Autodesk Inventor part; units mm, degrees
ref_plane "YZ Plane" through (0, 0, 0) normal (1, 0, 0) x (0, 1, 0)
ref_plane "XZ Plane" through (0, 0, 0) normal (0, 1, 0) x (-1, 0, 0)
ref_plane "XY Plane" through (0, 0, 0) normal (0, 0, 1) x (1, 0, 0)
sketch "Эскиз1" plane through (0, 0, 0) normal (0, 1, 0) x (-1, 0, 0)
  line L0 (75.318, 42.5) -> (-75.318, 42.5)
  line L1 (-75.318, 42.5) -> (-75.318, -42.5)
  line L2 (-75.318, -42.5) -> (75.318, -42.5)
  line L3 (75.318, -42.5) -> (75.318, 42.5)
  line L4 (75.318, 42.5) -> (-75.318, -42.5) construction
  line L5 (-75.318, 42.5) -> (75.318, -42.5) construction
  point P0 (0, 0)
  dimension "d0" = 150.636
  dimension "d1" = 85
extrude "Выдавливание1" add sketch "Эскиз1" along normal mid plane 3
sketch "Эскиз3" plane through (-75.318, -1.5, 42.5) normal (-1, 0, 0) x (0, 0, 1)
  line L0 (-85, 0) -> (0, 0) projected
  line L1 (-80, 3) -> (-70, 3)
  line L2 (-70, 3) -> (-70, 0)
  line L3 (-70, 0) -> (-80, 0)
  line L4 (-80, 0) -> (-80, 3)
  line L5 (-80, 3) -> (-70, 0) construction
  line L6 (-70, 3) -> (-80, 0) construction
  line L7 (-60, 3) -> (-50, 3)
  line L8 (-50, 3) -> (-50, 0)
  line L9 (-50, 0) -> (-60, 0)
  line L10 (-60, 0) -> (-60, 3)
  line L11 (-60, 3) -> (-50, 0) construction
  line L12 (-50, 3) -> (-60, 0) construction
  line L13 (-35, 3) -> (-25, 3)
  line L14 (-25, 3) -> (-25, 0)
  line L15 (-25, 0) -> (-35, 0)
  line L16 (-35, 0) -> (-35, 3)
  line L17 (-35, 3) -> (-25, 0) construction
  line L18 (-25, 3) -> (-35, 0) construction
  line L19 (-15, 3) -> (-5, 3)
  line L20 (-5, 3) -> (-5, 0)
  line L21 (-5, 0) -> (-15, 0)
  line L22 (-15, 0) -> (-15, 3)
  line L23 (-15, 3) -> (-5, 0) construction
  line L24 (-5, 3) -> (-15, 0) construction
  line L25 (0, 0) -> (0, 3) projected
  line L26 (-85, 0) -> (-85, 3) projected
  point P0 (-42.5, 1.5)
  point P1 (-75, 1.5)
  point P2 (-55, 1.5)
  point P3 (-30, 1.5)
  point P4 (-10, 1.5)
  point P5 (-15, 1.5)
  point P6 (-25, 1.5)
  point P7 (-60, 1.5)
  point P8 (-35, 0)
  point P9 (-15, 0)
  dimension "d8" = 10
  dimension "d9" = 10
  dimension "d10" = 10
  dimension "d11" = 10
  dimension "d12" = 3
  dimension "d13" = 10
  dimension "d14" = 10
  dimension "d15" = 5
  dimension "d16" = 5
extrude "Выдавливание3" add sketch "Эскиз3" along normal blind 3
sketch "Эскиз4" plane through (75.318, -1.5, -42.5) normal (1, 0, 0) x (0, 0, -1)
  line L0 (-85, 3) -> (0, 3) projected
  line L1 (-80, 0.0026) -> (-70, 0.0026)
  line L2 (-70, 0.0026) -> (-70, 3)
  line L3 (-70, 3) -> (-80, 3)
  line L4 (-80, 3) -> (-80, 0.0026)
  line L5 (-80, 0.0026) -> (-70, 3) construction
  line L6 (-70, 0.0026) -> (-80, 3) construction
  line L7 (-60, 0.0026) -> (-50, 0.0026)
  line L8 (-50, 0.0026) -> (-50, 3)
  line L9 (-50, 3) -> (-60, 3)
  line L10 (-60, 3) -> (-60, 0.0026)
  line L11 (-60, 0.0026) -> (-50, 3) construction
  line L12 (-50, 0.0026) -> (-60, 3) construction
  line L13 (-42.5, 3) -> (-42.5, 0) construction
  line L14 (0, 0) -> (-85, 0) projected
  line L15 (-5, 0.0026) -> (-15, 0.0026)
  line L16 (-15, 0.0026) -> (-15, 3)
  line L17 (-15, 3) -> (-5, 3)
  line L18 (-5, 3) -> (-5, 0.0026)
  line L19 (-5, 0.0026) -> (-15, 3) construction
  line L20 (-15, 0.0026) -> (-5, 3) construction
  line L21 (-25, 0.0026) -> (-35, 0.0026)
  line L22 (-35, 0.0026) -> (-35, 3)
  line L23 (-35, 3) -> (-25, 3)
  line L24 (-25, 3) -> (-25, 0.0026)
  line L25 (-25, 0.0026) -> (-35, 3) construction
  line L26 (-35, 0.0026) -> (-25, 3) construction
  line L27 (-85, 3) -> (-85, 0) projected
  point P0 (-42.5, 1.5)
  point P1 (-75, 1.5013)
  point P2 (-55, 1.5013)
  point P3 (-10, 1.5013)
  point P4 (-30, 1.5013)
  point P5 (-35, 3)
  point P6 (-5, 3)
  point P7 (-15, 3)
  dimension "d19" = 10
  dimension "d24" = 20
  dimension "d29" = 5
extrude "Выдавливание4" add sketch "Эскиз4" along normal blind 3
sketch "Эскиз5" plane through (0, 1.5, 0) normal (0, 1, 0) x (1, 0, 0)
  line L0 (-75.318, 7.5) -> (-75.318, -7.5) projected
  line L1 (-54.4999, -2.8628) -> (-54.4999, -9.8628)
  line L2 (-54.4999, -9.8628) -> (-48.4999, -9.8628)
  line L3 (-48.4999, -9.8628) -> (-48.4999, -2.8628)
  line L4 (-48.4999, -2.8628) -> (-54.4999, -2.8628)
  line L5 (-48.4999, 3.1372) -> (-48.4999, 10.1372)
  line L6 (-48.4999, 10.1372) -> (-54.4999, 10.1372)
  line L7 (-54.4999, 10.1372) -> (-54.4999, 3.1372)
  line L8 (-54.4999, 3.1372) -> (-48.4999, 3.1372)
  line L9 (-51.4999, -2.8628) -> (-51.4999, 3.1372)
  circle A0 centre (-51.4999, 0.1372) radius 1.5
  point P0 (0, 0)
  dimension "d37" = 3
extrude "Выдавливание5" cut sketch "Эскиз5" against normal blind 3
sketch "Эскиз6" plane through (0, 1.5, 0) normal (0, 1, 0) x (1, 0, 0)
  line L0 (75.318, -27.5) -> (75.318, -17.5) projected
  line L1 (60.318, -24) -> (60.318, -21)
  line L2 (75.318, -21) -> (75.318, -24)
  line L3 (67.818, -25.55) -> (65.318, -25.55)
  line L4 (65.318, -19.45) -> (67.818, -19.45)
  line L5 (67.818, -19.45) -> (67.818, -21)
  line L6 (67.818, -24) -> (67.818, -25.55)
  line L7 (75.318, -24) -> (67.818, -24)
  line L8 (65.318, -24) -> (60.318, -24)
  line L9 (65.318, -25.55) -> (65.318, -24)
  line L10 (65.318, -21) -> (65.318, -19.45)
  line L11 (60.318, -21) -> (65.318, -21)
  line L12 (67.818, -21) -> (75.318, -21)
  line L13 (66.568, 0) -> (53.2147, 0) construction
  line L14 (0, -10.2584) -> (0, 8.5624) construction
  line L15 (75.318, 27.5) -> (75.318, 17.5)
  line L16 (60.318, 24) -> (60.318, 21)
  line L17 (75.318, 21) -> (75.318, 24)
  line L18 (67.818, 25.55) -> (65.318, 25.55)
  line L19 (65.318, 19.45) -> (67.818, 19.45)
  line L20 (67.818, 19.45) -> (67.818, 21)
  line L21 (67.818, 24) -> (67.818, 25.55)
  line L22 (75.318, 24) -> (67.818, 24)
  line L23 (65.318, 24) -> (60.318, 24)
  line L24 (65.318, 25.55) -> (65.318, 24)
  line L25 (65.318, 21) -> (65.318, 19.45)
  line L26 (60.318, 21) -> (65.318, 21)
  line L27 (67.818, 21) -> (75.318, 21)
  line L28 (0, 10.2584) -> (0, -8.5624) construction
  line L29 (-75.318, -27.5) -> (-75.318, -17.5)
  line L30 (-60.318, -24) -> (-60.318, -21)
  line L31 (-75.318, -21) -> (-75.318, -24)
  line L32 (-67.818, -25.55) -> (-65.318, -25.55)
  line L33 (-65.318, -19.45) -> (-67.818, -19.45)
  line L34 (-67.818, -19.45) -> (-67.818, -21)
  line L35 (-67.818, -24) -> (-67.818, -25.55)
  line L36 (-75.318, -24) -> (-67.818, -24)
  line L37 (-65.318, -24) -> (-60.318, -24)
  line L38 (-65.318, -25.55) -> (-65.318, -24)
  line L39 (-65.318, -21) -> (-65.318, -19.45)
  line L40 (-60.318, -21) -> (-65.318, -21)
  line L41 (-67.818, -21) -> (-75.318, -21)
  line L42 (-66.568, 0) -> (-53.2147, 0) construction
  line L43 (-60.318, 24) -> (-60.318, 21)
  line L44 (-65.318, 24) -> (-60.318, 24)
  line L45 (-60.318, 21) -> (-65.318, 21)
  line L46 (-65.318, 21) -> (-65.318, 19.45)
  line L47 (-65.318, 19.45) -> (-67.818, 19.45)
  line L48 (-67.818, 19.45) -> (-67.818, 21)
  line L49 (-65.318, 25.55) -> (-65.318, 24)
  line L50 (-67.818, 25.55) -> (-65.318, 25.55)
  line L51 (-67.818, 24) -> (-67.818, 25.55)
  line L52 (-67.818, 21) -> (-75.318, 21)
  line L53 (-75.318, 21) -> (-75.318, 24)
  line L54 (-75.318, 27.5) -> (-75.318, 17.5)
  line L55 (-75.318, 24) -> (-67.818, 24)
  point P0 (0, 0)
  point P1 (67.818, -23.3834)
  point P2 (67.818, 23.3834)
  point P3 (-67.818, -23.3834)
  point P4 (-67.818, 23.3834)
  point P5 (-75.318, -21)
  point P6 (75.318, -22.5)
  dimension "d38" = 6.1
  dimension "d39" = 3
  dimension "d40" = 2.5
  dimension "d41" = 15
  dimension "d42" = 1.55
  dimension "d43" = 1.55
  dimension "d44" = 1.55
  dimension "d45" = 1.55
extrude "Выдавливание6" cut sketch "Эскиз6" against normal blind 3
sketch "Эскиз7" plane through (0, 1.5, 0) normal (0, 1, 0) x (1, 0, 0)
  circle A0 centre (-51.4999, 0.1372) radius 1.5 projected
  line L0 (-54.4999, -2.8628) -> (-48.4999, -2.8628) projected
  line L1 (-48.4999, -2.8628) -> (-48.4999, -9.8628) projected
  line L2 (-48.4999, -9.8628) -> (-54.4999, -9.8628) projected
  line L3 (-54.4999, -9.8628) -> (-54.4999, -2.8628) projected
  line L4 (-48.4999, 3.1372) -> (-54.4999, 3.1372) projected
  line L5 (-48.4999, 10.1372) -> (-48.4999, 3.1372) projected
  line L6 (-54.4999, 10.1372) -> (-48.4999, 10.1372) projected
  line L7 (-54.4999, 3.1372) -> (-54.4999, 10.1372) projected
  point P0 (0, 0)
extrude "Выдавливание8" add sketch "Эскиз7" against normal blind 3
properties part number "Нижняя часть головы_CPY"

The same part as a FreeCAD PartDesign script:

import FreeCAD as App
import Part
import Sketcher
Q = App.Units.Quantity


def add_polygon(sketch, points):
    """Adds a closed chain of lines whose ends are joined by coincident constraints."""
    first, n = sketch.GeometryCount, len(points)
    for a, b in zip(points, points[1:] + points[:1]):
        sketch.addGeometry(Part.LineSegment(App.Vector(*a, 0), App.Vector(*b, 0)), False)
    for i in range(n):
        sketch.addConstraint(Sketcher.Constraint("Coincident", first + i, 2, first + (i + 1) % n, 1))

doc = App.newDocument("Part")
body = doc.addObject("PartDesign::Body", "Body")

sketch1 = doc.addObject("Sketcher::SketchObject", "Sketch")
body.addObject(sketch1)
sketch1.AttachmentSupport = (doc.XZ_Plane, [""])
sketch1.MapMode = "FlatFace"
add_polygon(sketch1, [(-75, -42), (-75, 42), (75, 42), (75, -42)])
sketch1.addConstraint([
    Sketcher.Constraint("Vertical", 0),
    Sketcher.Constraint("Horizontal", 1),
    Sketcher.Constraint("Vertical", 2),
    Sketcher.Constraint("Horizontal", 3),
    Sketcher.Constraint("Symmetric", 0, 2, 2, 2, -1, 1),
    Sketcher.Constraint("DistanceY", 0, 1, 0, 2, Q("85 mm")),
    Sketcher.Constraint("DistanceX", 1, 1, 1, 2, Q("150.636 mm")),
])
pad1 = doc.addObject("PartDesign::Pad", "Pad")
body.addObject(pad1)
pad1.Profile = sketch1
pad1.Length = 3
pad1.Midplane = True

sketch2 = doc.addObject("Sketcher::SketchObject", "Sketch001")
body.addObject(sketch2)
sketch2.AttachmentSupport = (doc.YZ_Plane, [""])
sketch2.MapMode = "FlatFace"
sketch2.AttachmentOffset = App.Placement(App.Vector(0, 0, -75.318), App.Rotation())
add_polygon(sketch2, [(1.5, -37.5), (-1.5, -37.5), (-1.5, -27.5), (1.5, -27.5)])
add_polygon(sketch2, [(1.5, 27.5), (-1.5, 27.5), (-1.5, 37.5), (1.5, 37.5)])
add_polygon(sketch2, [(1.5, 7.5), (-1.5, 7.5), (-1.5, 17.5), (1.5, 17.5)])
add_polygon(sketch2, [(1.5, -17.5), (-1.5, -17.5), (-1.5, -7.5), (1.5, -7.5)])
sketch2.addConstraint([
    Sketcher.Constraint("Horizontal", 0),
    Sketcher.Constraint("Vertical", 1),
    Sketcher.Constraint("Horizontal", 2),
    Sketcher.Constraint("Vertical", 3),
    Sketcher.Constraint("Horizontal", 4),
    Sketcher.Constraint("Vertical", 5),
    Sketcher.Constraint("Horizontal", 6),
    Sketcher.Constraint("Vertical", 7),
    Sketcher.Constraint("Horizontal", 8),
    Sketcher.Constraint("Vertical", 9),
    Sketcher.Constraint("Horizontal", 10),
    Sketcher.Constraint("Vertical", 11),
    Sketcher.Constraint("Horizontal", 12),
    Sketcher.Constraint("Vertical", 13),
    Sketcher.Constraint("Horizontal", 14),
    Sketcher.Constraint("Vertical", 15),
    Sketcher.Constraint("Symmetric", 2, 2, 4, 2, -1, 1),
    Sketcher.Constraint("Symmetric", 0, 2, 6, 2, -1, 1),
    Sketcher.Constraint("Symmetric", 10, 2, 12, 2, -1, 1),
    Sketcher.Constraint("Symmetric", 8, 2, 14, 2, -1, 1),
    Sketcher.Constraint("Vertical", 1, 2, 4, 2),
    Sketcher.Constraint("Vertical", 5, 2, 8, 2),
    Sketcher.Constraint("Vertical", 7, 2, 10, 2),
    Sketcher.Constraint("Equal", 7, 9),
    Sketcher.Constraint("DistanceX", 0, 2, 0, 1, Q("3 mm")),
    Sketcher.Constraint("DistanceY", 1, 1, 1, 2, Q("10 mm")),
    Sketcher.Constraint("DistanceY", 9, 2, 4, 2, Q("10 mm")),
    Sketcher.Constraint("DistanceY", 1, 2, 4, 2, Q("55 mm")),
])
pad2 = doc.addObject("PartDesign::Pad", "Pad001")
body.addObject(pad2)
pad2.Profile = sketch2
pad2.Length = 3
pad2.Reversed = True

sketch3 = doc.addObject("Sketcher::SketchObject", "Sketch002")
body.addObject(sketch3)
sketch3.AttachmentSupport = (doc.YZ_Plane, [""])
sketch3.MapMode = "FlatFace"
sketch3.AttachmentOffset = App.Placement(App.Vector(0, 0, 75.318), App.Rotation())
add_polygon(sketch3, [(1.5, -37.5), (1.5, -27.5), (-1.5, -27.5), (-1.5, -37.5)])
add_polygon(sketch3, [(1.5, -17.5), (1.5, -7.5), (-1.5, -7.5), (-1.5, -17.5)])
add_polygon(sketch3, [(1.5, 7.5), (1.5, 17.5), (-1.5, 17.5), (-1.5, 7.5)])
add_polygon(sketch3, [(1.5, 27.5), (1.5, 37.5), (-1.5, 37.5), (-1.5, 27.5)])
sketch3.addConstraint([
    Sketcher.Constraint("Vertical", 0),
    Sketcher.Constraint("Horizontal", 1),
    Sketcher.Constraint("Vertical", 2),
    Sketcher.Constraint("Horizontal", 3),
    Sketcher.Constraint("Vertical", 4),
    Sketcher.Constraint("Horizontal", 5),
    Sketcher.Constraint("Vertical", 6),
    Sketcher.Constraint("Horizontal", 7),
    Sketcher.Constraint("Vertical", 8),
    Sketcher.Constraint("Horizontal", 9),
    Sketcher.Constraint("Vertical", 10),
    Sketcher.Constraint("Horizontal", 11),
    Sketcher.Constraint("Vertical", 12),
    Sketcher.Constraint("Horizontal", 13),
    Sketcher.Constraint("Vertical", 14),
    Sketcher.Constraint("Horizontal", 15),
    Sketcher.Constraint("Symmetric", 7, 2, 8, 2, -1),
    Sketcher.Constraint("Symmetric", 5, 2, 10, 2, -1),
    Sketcher.Constraint("Symmetric", 3, 2, 12, 2, -1),
    Sketcher.Constraint("Symmetric", 1, 2, 14, 2, -1),
    Sketcher.Constraint("Vertical", 3, 2, 4, 2),
    Sketcher.Constraint("Vertical", 2, 2, 5, 2),
    Sketcher.Constraint("Equal", 2, 4),
    Sketcher.Constraint("DistanceY", 0, 1, 0, 2, Q("10 mm")),
    Sketcher.Constraint("DistanceY", 0, 2, 4, 2, Q("20 mm")),
    Sketcher.Constraint("DistanceY", 4, 2, 8, 2, Q("25 mm")),
    Sketcher.Constraint("DistanceX", -1, 1, 0, 2, Q("1.5 mm")),
    Sketcher.Constraint("DistanceX", 1, 2, 1, 1, Q("2.9974 mm")),
])
pad3 = doc.addObject("PartDesign::Pad", "Pad002")
body.addObject(pad3)
pad3.Profile = sketch3
pad3.Length = 3

sketch4 = doc.addObject("Sketcher::SketchObject", "Sketch003")
body.addObject(sketch4)
sketch4.AttachmentSupport = (doc.XZ_Plane, [""])
sketch4.MapMode = "FlatFace"
sketch4.AttachmentOffset = App.Placement(App.Vector(0, 0, -1.5), App.Rotation())
add_polygon(sketch4, [(-48.5, 2.9), (-54.5, 2.9), (-54.5, 9.9), (-48.5, 9.9)])
add_polygon(sketch4, [(-54.5, -3.1), (-48.5, -3.1), (-48.5, -10.1), (-54.5, -10.1)])
sketch4.addGeometry(Part.Circle(App.Vector(-51.5, -0.1, 0), App.Vector(0, 0, 1), 1.5), False)
sketch4.addConstraint([
    Sketcher.Constraint("Horizontal", 0),
    Sketcher.Constraint("Vertical", 1),
    Sketcher.Constraint("Horizontal", 2),
    Sketcher.Constraint("Vertical", 3),
    Sketcher.Constraint("Horizontal", 4),
    Sketcher.Constraint("Vertical", 5),
    Sketcher.Constraint("Horizontal", 6),
    Sketcher.Constraint("Vertical", 7),
    Sketcher.Constraint("Vertical", 3, 2, 4, 2),
    Sketcher.Constraint("Vertical", 1, 2, 6, 2),
    Sketcher.Constraint("Equal", 3, 5),
    Sketcher.Constraint("Diameter", 8, Q("3 mm")),
    Sketcher.Constraint("DistanceX", 0, 2, 8, 3, Q("3 mm")),
    Sketcher.Constraint("DistanceY", 8, 3, 0, 2, Q("3 mm")),
    Sketcher.Constraint("DistanceX", 8, 3, 2, 2, Q("3 mm")),
    Sketcher.Constraint("DistanceY", 4, 2, 8, 3, Q("3 mm")),
    Sketcher.Constraint("DistanceY", 1, 1, 1, 2, Q("7 mm")),
    Sketcher.Constraint("DistanceX", 8, 3, -1, 1, Q("51.5 mm")),
    Sketcher.Constraint("DistanceY", 8, 3, -1, 1, Q("0.1372 mm")),
])
pocket1 = doc.addObject("PartDesign::Pocket", "Pocket")
body.addObject(pocket1)
pocket1.Profile = sketch4
pocket1.Length = 3
pocket1.Reversed = True

sketch5 = doc.addObject("Sketcher::SketchObject", "Sketch004")
body.addObject(sketch5)
sketch5.AttachmentSupport = (doc.XZ_Plane, [""])
sketch5.MapMode = "FlatFace"
sketch5.AttachmentOffset = App.Placement(App.Vector(0, 0, -1.5), App.Rotation())
add_polygon(sketch5, [(67.8, 24), (75.3, 24), (75.3, 21), (67.8, 21), (67.8, 19.4), (65.3, 19.4), (65.3, 21), (60.3, 21), (60.3, 24), (65.3, 24), (65.3, 25.6), (67.8, 25.6)])
add_polygon(sketch5, [(75.3, -21), (75.3, -24), (67.8, -24), (67.8, -25.6), (65.3, -25.6), (65.3, -24), (60.3, -24), (60.3, -21), (65.3, -21), (65.3, -19.4), (67.8, -19.4), (67.8, -21)])
add_polygon(sketch5, [(-75.3, 21), (-75.3, 24), (-67.8, 24), (-67.8, 25.6), (-65.3, 25.6), (-65.3, 24), (-60.3, 24), (-60.3, 21), (-65.3, 21), (-65.3, 19.4), (-67.8, 19.4), (-67.8, 21)])
add_polygon(sketch5, [(-60.3, -21), (-60.3, -24), (-65.3, -24), (-65.3, -25.6), (-67.8, -25.6), (-67.8, -24), (-75.3, -24), (-75.3, -21), (-67.8, -21), (-67.8, -19.4), (-65.3, -19.4), (-65.3, -21)])
sketch5.addConstraint([
    Sketcher.Constraint("Horizontal", 0),
    Sketcher.Constraint("Vertical", 1),
    Sketcher.Constraint("Horizontal", 2),
    Sketcher.Constraint("Vertical", 3),
    Sketcher.Constraint("Horizontal", 4),
    Sketcher.Constraint("Vertical", 5),
    Sketcher.Constraint("Horizontal", 6),
    Sketcher.Constraint("Vertical", 7),
    Sketcher.Constraint("Horizontal", 8),
    Sketcher.Constraint("Vertical", 9),
    Sketcher.Constraint("Horizontal", 10),
    Sketcher.Constraint("Vertical", 11),
    Sketcher.Constraint("Vertical", 12),
    Sketcher.Constraint("Horizontal", 13),
    Sketcher.Constraint("Vertical", 14),
    Sketcher.Constraint("Horizontal", 15),
    Sketcher.Constraint("Vertical", 16),
    Sketcher.Constraint("Horizontal", 17),
    Sketcher.Constraint("Vertical", 18),
    Sketcher.Constraint("Horizontal", 19),
    Sketcher.Constraint("Vertical", 20),
    Sketcher.Constraint("Horizontal", 21),
    Sketcher.Constraint("Vertical", 22),
    Sketcher.Constraint("Horizontal", 23),
    Sketcher.Constraint("Vertical", 24),
    Sketcher.Constraint("Horizontal", 25),
    Sketcher.Constraint("Vertical", 26),
    Sketcher.Constraint("Horizontal", 27),
    Sketcher.Constraint("Vertical", 28),
    Sketcher.Constraint("Horizontal", 29),
    Sketcher.Constraint("Vertical", 30),
    Sketcher.Constraint("Horizontal", 31),
    Sketcher.Constraint("Vertical", 32),
    Sketcher.Constraint("Horizontal", 33),
    Sketcher.Constraint("Vertical", 34),
    Sketcher.Constraint("Horizontal", 35),
    Sketcher.Constraint("Vertical", 36),
    Sketcher.Constraint("Horizontal", 37),
    Sketcher.Constraint("Vertical", 38),
    Sketcher.Constraint("Horizontal", 39),
    Sketcher.Constraint("Vertical", 40),
    Sketcher.Constraint("Horizontal", 41),
    Sketcher.Constraint("Vertical", 42),
    Sketcher.Constraint("Horizontal", 43),
    Sketcher.Constraint("Vertical", 44),
    Sketcher.Constraint("Horizontal", 45),
    Sketcher.Constraint("Vertical", 46),
    Sketcher.Constraint("Horizontal", 47),
    Sketcher.Constraint("Symmetric", 12, 2, 24, 2, -1, 1),
    Sketcher.Constraint("Symmetric", 14, 2, 26, 2, -1, 1),
    Sketcher.Constraint("Symmetric", 16, 2, 28, 2, -1, 1),
    Sketcher.Constraint("Symmetric", 18, 2, 30, 2, -1, 1),
    Sketcher.Constraint("Symmetric", 20, 2, 32, 2, -1, 1),
    Sketcher.Constraint("Symmetric", 22, 2, 34, 2, -1, 1),
    Sketcher.Constraint("Symmetric", 7, 2, 36, 2, -1, 1),
    Sketcher.Constraint("Symmetric", 9, 2, 38, 2, -1, 1),
    Sketcher.Constraint("Symmetric", 11, 2, 40, 2, -1, 1),
    Sketcher.Constraint("Symmetric", 1, 2, 42, 2, -1, 1),
    Sketcher.Constraint("Symmetric", 3, 2, 44, 2, -1, 1),
    Sketcher.Constraint("Symmetric", 5, 2, 46, 2, -1, 1),
    Sketcher.Constraint("Symmetric", 0, 2, 24, 2, -2),
    Sketcher.Constraint("Symmetric", 10, 2, 26, 2, -2),
    Sketcher.Constraint("Symmetric", 8, 2, 28, 2, -2),
    Sketcher.Constraint("Symmetric", 6, 2, 30, 2, -2),
    Sketcher.Constraint("Symmetric", 4, 2, 32, 2, -2),
    Sketcher.Constraint("Symmetric", 2, 2, 34, 2, -2),
    Sketcher.Constraint("Horizontal", 2, 2, 5, 2),
    Sketcher.Constraint("Horizontal", 0, 2, 7, 2),
    Sketcher.Constraint("Vertical", 5, 2, 8, 2),
    Sketcher.Constraint("Vertical", 3, 2, 10, 2),
    Sketcher.Constraint("Equal", 5, 9),
    Sketcher.Constraint("DistanceY", 1, 2, 1, 1, Q("3 mm")),
    Sketcher.Constraint("DistanceX", 4, 2, 4, 1, Q("2.5 mm")),
    Sketcher.Constraint("DistanceX", 6, 2, 1, 2, Q("15 mm")),
    Sketcher.Constraint("DistanceY", 3, 2, 3, 1, Q("1.55 mm")),
    Sketcher.Constraint("DistanceX", 6, 2, 6, 1, Q("5 mm")),
    Sketcher.Constraint("DistanceY", -1, 1, 0, 2, Q("24 mm")),
    Sketcher.Constraint("DistanceX", -1, 1, 0, 2, Q("75.318 mm")),
])
pocket2 = doc.addObject("PartDesign::Pocket", "Pocket001")
body.addObject(pocket2)
pocket2.Profile = sketch5
pocket2.Length = 3
pocket2.Reversed = True

sketch6 = doc.addObject("Sketcher::SketchObject", "Sketch005")
body.addObject(sketch6)
sketch6.AttachmentSupport = (doc.XZ_Plane, [""])
sketch6.MapMode = "FlatFace"
sketch6.AttachmentOffset = App.Placement(App.Vector(0, 0, -1.5), App.Rotation())
sketch6.addGeometry(Part.Circle(App.Vector(-51.5, -0.1, 0), App.Vector(0, 0, 1), 1.5), False)
add_polygon(sketch6, [(-48.5, 2.9), (-54.5, 2.9), (-54.5, 9.9), (-48.5, 9.9)])
add_polygon(sketch6, [(-54.5, -3.1), (-48.5, -3.1), (-48.5, -10.1), (-54.5, -10.1)])
sketch6.addConstraint([
    Sketcher.Constraint("Horizontal", 1),
    Sketcher.Constraint("Vertical", 2),
    Sketcher.Constraint("Horizontal", 3),
    Sketcher.Constraint("Vertical", 4),
    Sketcher.Constraint("Horizontal", 5),
    Sketcher.Constraint("Vertical", 6),
    Sketcher.Constraint("Horizontal", 7),
    Sketcher.Constraint("Vertical", 8),
    Sketcher.Constraint("Vertical", 4, 2, 5, 2),
    Sketcher.Constraint("Vertical", 2, 2, 7, 2),
    Sketcher.Constraint("Equal", 4, 6),
    Sketcher.Constraint("Diameter", 0, Q("3 mm")),
    Sketcher.Constraint("DistanceX", 1, 2, 1, 1, Q("6 mm")),
    Sketcher.Constraint("DistanceY", 2, 1, 2, 2, Q("7 mm")),
    Sketcher.Constraint("DistanceX", 1, 2, 0, 3, Q("3 mm")),
    Sketcher.Constraint("DistanceY", 0, 3, 1, 2, Q("3 mm")),
    Sketcher.Constraint("DistanceY", 5, 2, 0, 3, Q("3 mm")),
    Sketcher.Constraint("DistanceX", 0, 3, -1, 1, Q("51.5 mm")),
    Sketcher.Constraint("DistanceY", 0, 3, -1, 1, Q("0.1372 mm")),
])
pad4 = doc.addObject("PartDesign::Pad", "Pad003")
body.addObject(pad4)
pad4.Profile = sketch6
pad4.Length = 3

doc.recompute()
